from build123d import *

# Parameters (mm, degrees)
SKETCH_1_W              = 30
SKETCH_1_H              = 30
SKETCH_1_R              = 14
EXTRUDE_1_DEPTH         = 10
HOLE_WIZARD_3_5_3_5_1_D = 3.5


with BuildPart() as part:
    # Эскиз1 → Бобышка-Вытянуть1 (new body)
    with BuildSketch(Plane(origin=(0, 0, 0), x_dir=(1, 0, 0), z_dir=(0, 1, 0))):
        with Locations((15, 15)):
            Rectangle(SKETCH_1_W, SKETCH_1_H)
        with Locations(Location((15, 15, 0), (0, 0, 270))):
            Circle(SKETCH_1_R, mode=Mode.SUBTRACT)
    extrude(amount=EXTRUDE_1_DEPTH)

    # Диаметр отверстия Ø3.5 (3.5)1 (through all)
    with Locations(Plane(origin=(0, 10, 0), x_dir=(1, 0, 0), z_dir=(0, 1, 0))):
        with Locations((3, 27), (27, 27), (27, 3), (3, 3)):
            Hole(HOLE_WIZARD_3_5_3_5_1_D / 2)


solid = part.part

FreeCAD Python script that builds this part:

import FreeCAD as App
import Part
import Sketcher
from FreeCAD import Vector
Q = App.Units.Quantity

doc = App.newDocument("Part")
body = doc.addObject("PartDesign::Body", "Body")

sketch1 = doc.addObject("Sketcher::SketchObject", "Sketch")
body.addObject(sketch1)
sketch1.AttachmentSupport = (doc.XZ_Plane, [""])
sketch1.MapMode = "FlatFace"
sketch1.addGeometry(Part.LineSegment(Vector(0, -30, 0), Vector(0, 0, 0)), False)
sketch1.addGeometry(Part.LineSegment(Vector(0, 0, 0), Vector(30, 0, 0)), False)
sketch1.addGeometry(Part.LineSegment(Vector(30, 0, 0), Vector(30, -30, 0)), False)
sketch1.addGeometry(Part.LineSegment(Vector(30, -30, 0), Vector(0, -30, 0)), False)
sketch1.addGeometry(Part.Circle(Vector(15, -15, 0), Vector(0, 0, 1), 14), False)
sketch1.addConstraint(Sketcher.Constraint("Coincident", 0, 2, 1, 1))
sketch1.addConstraint(Sketcher.Constraint("Coincident", 1, 2, 2, 1))
sketch1.addConstraint(Sketcher.Constraint("Coincident", 2, 2, 3, 1))
sketch1.addConstraint(Sketcher.Constraint("Coincident", 3, 2, 0, 1))
sketch1.addConstraint(Sketcher.Constraint("Vertical", 0))
sketch1.addConstraint(Sketcher.Constraint("Horizontal", 1))
sketch1.addConstraint(Sketcher.Constraint("Vertical", 2))
sketch1.addConstraint(Sketcher.Constraint("Horizontal", 3))
sketch1.addConstraint(Sketcher.Constraint("Coincident", 0, 2, -1, 1))
sketch1.addConstraint(Sketcher.Constraint("Equal", 3, 0))
sketch1.addConstraint(Sketcher.Constraint("Diameter", 4, Q("28 mm")))
sketch1.addConstraint(Sketcher.Constraint("DistanceX", 1, 1, 1, 2, Q("30 mm")))
sketch1.addConstraint(Sketcher.Constraint("DistanceX", -1, 1, 4, 3, Q("15 mm")))
sketch1.addConstraint(Sketcher.Constraint("DistanceY", 4, 3, -1, 1, Q("15 mm")))
pad1 = doc.addObject("PartDesign::Pad", "Pad")
body.addObject(pad1)
pad1.Profile = sketch1
pad1.Length = 10
pad1.Reversed = True

sketch2 = doc.addObject("Sketcher::SketchObject", "Sketch001")
body.addObject(sketch2)
sketch2.AttachmentSupport = (doc.XZ_Plane, [""])
sketch2.MapMode = "FlatFace"
sketch2.AttachmentOffset = App.Placement(Vector(0, 0, -10), App.Rotation())
sketch2.addGeometry(Part.Circle(Vector(3, -27, 0), Vector(0, 0, 1), 1.75), False)
sketch2.addGeometry(Part.Circle(Vector(27, -27, 0), Vector(0, 0, 1), 1.75), False)
sketch2.addGeometry(Part.Circle(Vector(27, -3, 0), Vector(0, 0, 1), 1.75), False)
sketch2.addGeometry(Part.Circle(Vector(3, -3, 0), Vector(0, 0, 1), 1.75), False)
sketch2.addConstraint(Sketcher.Constraint("Equal", 0, 1))
sketch2.addConstraint(Sketcher.Constraint("Equal", 1, 2))
sketch2.addConstraint(Sketcher.Constraint("Equal", 2, 3))
sketch2.addConstraint(Sketcher.Constraint("Horizontal", 0, 3, 1, 3))
sketch2.addConstraint(Sketcher.Constraint("Horizontal", 2, 3, 3, 3))
sketch2.addConstraint(Sketcher.Constraint("Vertical", 1, 3, 2, 3))
sketch2.addConstraint(Sketcher.Constraint("Vertical", 0, 3, 3, 3))
sketch2.addConstraint(Sketcher.Constraint("Diameter", 0, Q("3.5 mm")))
sketch2.addConstraint(Sketcher.Constraint("DistanceX", -1, 1, 0, 3, Q("3 mm")))
sketch2.addConstraint(Sketcher.Constraint("DistanceY", 0, 3, -1, 1, Q("27 mm")))
sketch2.addConstraint(Sketcher.Constraint("DistanceX", -1, 1, 1, 3, Q("27 mm")))
sketch2.addConstraint(Sketcher.Constraint("DistanceY", 2, 3, -1, 1, Q("3 mm")))
doc.recompute()
hole = doc.addObject("PartDesign::Hole", "Hole")
body.addObject(hole)
hole.Profile = sketch2
hole.ThreadType = "None"
hole.Diameter = 3.5
hole.DepthType = "ThroughAll"
hole.Reversed = True

doc.recompute()
